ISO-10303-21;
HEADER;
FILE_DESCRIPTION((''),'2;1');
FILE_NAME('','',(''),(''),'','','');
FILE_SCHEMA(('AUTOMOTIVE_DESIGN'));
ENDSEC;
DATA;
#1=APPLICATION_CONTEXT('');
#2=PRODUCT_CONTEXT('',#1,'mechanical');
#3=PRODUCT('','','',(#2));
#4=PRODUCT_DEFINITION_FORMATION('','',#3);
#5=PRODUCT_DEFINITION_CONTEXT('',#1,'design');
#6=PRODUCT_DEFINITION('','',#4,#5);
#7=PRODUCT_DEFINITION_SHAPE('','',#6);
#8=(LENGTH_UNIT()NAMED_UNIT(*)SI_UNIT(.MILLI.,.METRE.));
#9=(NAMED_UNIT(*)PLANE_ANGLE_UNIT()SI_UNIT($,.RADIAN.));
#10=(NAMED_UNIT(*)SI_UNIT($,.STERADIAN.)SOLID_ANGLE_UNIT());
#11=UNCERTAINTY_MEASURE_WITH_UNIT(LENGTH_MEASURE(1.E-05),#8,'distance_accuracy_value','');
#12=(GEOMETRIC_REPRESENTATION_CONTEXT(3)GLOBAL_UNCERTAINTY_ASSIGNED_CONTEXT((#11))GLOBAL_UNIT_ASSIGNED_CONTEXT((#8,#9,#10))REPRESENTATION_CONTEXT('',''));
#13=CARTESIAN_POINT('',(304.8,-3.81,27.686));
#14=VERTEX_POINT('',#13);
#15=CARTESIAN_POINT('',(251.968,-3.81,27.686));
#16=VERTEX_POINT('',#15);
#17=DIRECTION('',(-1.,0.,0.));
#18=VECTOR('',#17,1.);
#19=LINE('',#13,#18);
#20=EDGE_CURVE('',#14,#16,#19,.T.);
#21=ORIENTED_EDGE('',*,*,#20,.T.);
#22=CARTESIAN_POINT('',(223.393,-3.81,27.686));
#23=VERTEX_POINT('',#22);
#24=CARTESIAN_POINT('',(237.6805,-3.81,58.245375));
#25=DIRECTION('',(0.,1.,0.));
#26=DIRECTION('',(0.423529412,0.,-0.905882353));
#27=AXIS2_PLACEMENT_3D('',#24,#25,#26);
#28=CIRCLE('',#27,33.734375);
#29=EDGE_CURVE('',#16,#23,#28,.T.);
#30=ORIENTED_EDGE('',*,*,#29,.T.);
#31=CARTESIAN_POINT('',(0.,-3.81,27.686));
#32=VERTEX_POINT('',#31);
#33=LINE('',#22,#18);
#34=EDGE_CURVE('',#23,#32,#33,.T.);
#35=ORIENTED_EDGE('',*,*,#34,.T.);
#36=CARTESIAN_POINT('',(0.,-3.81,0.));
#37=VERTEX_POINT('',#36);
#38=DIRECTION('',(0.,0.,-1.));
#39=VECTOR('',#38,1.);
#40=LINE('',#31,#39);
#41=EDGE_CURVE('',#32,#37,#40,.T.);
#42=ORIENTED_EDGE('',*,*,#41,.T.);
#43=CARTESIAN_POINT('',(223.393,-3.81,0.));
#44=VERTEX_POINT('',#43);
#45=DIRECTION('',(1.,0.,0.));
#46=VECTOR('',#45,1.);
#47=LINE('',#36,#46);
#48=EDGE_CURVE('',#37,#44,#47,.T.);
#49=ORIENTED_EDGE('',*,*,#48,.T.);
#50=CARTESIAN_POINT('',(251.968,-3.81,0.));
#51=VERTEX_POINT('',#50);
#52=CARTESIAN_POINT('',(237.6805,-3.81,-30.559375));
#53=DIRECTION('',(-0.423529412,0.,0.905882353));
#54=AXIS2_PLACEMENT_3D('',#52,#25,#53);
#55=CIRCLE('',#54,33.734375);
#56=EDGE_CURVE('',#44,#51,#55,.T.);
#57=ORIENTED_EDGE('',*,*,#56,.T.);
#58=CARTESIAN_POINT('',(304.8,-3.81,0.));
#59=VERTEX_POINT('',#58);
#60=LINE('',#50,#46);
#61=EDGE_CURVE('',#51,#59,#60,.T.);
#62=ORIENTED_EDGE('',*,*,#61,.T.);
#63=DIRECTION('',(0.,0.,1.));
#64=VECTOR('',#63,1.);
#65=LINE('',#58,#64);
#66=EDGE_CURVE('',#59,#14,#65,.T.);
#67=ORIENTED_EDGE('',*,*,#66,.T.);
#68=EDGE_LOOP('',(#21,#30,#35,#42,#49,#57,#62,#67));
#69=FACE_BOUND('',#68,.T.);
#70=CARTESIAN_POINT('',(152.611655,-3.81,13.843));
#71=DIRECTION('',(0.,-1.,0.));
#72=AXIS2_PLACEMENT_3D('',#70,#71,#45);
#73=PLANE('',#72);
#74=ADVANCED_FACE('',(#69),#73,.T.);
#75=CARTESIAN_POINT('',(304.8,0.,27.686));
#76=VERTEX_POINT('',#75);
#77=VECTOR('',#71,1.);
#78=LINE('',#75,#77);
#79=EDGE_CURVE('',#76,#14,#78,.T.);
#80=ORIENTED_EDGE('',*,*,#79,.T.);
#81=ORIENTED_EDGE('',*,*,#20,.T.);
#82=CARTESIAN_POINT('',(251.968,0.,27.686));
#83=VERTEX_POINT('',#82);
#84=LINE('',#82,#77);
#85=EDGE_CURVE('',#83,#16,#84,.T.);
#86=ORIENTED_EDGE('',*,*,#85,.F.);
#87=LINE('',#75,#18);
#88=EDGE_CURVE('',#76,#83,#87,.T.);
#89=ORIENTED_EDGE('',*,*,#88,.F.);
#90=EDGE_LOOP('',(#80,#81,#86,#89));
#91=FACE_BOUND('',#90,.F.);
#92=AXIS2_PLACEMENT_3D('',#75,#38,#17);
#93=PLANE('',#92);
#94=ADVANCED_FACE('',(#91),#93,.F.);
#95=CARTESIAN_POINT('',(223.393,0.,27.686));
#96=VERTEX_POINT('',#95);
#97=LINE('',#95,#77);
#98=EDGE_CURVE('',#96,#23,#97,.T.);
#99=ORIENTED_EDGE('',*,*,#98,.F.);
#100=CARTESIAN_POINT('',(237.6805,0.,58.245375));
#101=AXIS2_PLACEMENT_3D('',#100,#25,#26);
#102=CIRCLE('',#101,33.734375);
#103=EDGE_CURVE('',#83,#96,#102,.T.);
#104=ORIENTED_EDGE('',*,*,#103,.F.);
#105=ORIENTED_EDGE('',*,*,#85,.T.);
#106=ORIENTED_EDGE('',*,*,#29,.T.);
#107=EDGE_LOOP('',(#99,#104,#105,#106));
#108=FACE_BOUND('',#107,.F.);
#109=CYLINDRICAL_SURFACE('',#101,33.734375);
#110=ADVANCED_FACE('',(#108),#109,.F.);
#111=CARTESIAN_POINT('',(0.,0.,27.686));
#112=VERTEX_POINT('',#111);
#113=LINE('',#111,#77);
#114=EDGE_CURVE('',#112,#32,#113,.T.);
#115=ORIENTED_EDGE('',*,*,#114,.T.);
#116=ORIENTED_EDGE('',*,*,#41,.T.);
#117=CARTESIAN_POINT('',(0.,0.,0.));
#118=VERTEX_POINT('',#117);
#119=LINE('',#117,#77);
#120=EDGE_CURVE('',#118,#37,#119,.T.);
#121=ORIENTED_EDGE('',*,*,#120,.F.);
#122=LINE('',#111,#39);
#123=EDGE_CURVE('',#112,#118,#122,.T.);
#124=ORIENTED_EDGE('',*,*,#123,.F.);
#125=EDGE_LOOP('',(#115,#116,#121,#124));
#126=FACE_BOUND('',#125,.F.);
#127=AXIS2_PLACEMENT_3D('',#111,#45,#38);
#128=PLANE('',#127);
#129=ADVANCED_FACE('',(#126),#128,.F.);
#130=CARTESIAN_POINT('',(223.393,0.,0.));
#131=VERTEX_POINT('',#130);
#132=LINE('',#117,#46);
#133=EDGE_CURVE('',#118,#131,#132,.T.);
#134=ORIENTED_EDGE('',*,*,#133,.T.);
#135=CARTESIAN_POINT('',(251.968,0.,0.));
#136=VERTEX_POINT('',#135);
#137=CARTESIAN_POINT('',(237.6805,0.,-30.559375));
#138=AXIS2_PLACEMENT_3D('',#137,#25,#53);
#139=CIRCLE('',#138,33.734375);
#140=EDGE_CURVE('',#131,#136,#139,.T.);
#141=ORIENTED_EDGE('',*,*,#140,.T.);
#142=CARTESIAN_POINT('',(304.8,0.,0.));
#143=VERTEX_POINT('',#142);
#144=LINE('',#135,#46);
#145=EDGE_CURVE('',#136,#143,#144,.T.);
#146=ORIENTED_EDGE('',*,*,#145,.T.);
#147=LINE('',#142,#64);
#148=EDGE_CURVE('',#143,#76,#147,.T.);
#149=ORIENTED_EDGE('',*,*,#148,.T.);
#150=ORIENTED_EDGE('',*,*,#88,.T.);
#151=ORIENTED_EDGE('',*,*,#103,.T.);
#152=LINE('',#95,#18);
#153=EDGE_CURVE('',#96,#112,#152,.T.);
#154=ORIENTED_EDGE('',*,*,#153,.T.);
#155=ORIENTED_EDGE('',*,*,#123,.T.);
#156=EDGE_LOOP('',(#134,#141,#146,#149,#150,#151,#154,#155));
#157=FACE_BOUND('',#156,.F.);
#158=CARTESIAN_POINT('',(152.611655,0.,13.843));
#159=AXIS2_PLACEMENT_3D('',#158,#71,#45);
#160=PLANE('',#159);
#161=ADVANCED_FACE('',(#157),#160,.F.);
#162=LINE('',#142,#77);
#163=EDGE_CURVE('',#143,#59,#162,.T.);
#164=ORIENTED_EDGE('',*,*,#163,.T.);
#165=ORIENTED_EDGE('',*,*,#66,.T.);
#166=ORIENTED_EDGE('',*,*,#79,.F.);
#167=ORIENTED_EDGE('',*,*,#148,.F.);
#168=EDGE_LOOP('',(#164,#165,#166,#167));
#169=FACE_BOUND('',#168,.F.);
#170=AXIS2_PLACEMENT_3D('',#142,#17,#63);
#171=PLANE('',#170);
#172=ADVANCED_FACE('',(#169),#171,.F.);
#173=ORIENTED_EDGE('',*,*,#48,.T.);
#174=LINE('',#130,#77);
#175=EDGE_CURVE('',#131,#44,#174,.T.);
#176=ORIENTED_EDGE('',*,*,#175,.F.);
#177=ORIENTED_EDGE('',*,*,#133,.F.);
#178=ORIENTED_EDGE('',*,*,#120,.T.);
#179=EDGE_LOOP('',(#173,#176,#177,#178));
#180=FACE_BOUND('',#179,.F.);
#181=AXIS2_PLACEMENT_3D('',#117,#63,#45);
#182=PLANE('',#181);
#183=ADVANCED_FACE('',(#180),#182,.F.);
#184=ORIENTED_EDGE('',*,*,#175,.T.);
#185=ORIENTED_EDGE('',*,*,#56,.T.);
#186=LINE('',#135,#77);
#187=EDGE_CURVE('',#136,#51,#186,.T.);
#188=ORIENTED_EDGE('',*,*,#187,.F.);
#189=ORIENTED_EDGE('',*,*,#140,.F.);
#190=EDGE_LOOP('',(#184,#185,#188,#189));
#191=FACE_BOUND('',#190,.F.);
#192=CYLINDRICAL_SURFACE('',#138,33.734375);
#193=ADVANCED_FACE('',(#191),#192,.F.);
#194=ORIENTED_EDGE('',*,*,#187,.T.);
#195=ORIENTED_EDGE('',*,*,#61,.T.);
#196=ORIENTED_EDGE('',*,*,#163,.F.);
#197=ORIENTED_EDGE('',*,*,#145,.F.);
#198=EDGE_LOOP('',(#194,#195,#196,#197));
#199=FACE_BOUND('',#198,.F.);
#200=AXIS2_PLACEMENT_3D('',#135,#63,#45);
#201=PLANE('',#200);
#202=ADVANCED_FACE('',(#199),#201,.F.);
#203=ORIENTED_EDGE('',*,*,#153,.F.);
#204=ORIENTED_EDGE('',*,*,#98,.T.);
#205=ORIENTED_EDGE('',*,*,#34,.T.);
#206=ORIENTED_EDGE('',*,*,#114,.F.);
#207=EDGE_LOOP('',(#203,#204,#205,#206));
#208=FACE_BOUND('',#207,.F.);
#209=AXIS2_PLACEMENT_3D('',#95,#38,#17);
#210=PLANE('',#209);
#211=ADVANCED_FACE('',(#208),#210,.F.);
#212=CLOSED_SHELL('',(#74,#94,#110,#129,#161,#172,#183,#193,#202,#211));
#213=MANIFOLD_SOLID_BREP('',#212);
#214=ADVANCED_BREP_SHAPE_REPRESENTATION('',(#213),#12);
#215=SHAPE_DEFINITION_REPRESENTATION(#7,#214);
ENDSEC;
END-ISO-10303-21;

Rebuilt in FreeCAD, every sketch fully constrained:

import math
import FreeCAD as App
import Part
import Sketcher
from FreeCAD import Vector
Q = App.Units.Quantity

doc = App.newDocument("Part")
body = doc.addObject("PartDesign::Body", "Body")

sketch1 = doc.addObject("Sketcher::SketchObject", "Sketch")
body.addObject(sketch1)
sketch1.AttachmentSupport = (doc.XZ_Plane, [""])
sketch1.MapMode = "FlatFace"
sketch1.addGeometry(Part.LineSegment(Vector(0, 28, 0), Vector(0, 0, 0)), False)
sketch1.addGeometry(Part.LineSegment(Vector(0, 0, 0), Vector(223, 0, 0)), False)
sketch1.addGeometry(Part.ArcOfCircle(Part.Circle(Vector(238, -31, 0), Vector(0, 0, 1), 34), math.radians(65), math.radians(115)), False)
sketch1.addGeometry(Part.LineSegment(Vector(252, 0, 0), Vector(305, 0, 0)), False)
sketch1.addGeometry(Part.LineSegment(Vector(305, 0, 0), Vector(305, 28, 0)), False)
sketch1.addGeometry(Part.LineSegment(Vector(305, 28, 0), Vector(252, 28, 0)), False)
sketch1.addGeometry(Part.ArcOfCircle(Part.Circle(Vector(238, 58, 0), Vector(0, 0, 1), 34), math.radians(-115), math.radians(-65)), False)
sketch1.addGeometry(Part.LineSegment(Vector(223, 28, 0), Vector(0, 28, 0)), False)
sketch1.addConstraint(Sketcher.Constraint("Coincident", 0, 2, 1, 1))
sketch1.addConstraint(Sketcher.Constraint("Coincident", 1, 2, 2, 2))
sketch1.addConstraint(Sketcher.Constraint("Coincident", 2, 1, 3, 1))
sketch1.addConstraint(Sketcher.Constraint("Coincident", 3, 2, 4, 1))
sketch1.addConstraint(Sketcher.Constraint("Coincident", 4, 2, 5, 1))
sketch1.addConstraint(Sketcher.Constraint("Coincident", 5, 2, 6, 2))
sketch1.addConstraint(Sketcher.Constraint("Coincident", 6, 1, 7, 1))
sketch1.addConstraint(Sketcher.Constraint("Coincident", 7, 2, 0, 1))
sketch1.addConstraint(Sketcher.Constraint("Vertical", 0))
sketch1.addConstraint(Sketcher.Constraint("Horizontal", 1))
sketch1.addConstraint(Sketcher.Constraint("Horizontal", 3))
sketch1.addConstraint(Sketcher.Constraint("Vertical", 4))
sketch1.addConstraint(Sketcher.Constraint("Horizontal", 5))
sketch1.addConstraint(Sketcher.Constraint("Horizontal", 7))
sketch1.addConstraint(Sketcher.Constraint("Coincident", 0, 2, -1, 1))
sketch1.addConstraint(Sketcher.Constraint("Equal", 2, 6))
sketch1.addConstraint(Sketcher.Constraint("PointOnObject", 2, 1, -1))
sketch1.addConstraint(Sketcher.Constraint("Horizontal", 5, 2, 6, 1))
sketch1.addConstraint(Sketcher.Constraint("Vertical", 2, 3, 6, 3))
sketch1.addConstraint(Sketcher.Constraint("Vertical", 2, 1, 5, 2))
sketch1.addConstraint(Sketcher.Constraint("DistanceX", -1, 1, 3, 2, Q("12 in")))
sketch1.addConstraint(Sketcher.Constraint("Radius", 2, Q("1.328125 in")))
sketch1.addConstraint(Sketcher.Constraint("DistanceX", 3, 1, 3, 2, Q("2.08 in")))
sketch1.addConstraint(Sketcher.Constraint("DistanceY", 0, 2, 0, 1, Q("1.09 in")))
sketch1.addConstraint(Sketcher.Constraint("DistanceX", 1, 1, 1, 2, Q("8.795 in")))
pad1 = doc.addObject("PartDesign::Pad", "Pad")
body.addObject(pad1)
pad1.Profile = sketch1
pad1.Length = Q("0.15 in")

doc.recompute()
